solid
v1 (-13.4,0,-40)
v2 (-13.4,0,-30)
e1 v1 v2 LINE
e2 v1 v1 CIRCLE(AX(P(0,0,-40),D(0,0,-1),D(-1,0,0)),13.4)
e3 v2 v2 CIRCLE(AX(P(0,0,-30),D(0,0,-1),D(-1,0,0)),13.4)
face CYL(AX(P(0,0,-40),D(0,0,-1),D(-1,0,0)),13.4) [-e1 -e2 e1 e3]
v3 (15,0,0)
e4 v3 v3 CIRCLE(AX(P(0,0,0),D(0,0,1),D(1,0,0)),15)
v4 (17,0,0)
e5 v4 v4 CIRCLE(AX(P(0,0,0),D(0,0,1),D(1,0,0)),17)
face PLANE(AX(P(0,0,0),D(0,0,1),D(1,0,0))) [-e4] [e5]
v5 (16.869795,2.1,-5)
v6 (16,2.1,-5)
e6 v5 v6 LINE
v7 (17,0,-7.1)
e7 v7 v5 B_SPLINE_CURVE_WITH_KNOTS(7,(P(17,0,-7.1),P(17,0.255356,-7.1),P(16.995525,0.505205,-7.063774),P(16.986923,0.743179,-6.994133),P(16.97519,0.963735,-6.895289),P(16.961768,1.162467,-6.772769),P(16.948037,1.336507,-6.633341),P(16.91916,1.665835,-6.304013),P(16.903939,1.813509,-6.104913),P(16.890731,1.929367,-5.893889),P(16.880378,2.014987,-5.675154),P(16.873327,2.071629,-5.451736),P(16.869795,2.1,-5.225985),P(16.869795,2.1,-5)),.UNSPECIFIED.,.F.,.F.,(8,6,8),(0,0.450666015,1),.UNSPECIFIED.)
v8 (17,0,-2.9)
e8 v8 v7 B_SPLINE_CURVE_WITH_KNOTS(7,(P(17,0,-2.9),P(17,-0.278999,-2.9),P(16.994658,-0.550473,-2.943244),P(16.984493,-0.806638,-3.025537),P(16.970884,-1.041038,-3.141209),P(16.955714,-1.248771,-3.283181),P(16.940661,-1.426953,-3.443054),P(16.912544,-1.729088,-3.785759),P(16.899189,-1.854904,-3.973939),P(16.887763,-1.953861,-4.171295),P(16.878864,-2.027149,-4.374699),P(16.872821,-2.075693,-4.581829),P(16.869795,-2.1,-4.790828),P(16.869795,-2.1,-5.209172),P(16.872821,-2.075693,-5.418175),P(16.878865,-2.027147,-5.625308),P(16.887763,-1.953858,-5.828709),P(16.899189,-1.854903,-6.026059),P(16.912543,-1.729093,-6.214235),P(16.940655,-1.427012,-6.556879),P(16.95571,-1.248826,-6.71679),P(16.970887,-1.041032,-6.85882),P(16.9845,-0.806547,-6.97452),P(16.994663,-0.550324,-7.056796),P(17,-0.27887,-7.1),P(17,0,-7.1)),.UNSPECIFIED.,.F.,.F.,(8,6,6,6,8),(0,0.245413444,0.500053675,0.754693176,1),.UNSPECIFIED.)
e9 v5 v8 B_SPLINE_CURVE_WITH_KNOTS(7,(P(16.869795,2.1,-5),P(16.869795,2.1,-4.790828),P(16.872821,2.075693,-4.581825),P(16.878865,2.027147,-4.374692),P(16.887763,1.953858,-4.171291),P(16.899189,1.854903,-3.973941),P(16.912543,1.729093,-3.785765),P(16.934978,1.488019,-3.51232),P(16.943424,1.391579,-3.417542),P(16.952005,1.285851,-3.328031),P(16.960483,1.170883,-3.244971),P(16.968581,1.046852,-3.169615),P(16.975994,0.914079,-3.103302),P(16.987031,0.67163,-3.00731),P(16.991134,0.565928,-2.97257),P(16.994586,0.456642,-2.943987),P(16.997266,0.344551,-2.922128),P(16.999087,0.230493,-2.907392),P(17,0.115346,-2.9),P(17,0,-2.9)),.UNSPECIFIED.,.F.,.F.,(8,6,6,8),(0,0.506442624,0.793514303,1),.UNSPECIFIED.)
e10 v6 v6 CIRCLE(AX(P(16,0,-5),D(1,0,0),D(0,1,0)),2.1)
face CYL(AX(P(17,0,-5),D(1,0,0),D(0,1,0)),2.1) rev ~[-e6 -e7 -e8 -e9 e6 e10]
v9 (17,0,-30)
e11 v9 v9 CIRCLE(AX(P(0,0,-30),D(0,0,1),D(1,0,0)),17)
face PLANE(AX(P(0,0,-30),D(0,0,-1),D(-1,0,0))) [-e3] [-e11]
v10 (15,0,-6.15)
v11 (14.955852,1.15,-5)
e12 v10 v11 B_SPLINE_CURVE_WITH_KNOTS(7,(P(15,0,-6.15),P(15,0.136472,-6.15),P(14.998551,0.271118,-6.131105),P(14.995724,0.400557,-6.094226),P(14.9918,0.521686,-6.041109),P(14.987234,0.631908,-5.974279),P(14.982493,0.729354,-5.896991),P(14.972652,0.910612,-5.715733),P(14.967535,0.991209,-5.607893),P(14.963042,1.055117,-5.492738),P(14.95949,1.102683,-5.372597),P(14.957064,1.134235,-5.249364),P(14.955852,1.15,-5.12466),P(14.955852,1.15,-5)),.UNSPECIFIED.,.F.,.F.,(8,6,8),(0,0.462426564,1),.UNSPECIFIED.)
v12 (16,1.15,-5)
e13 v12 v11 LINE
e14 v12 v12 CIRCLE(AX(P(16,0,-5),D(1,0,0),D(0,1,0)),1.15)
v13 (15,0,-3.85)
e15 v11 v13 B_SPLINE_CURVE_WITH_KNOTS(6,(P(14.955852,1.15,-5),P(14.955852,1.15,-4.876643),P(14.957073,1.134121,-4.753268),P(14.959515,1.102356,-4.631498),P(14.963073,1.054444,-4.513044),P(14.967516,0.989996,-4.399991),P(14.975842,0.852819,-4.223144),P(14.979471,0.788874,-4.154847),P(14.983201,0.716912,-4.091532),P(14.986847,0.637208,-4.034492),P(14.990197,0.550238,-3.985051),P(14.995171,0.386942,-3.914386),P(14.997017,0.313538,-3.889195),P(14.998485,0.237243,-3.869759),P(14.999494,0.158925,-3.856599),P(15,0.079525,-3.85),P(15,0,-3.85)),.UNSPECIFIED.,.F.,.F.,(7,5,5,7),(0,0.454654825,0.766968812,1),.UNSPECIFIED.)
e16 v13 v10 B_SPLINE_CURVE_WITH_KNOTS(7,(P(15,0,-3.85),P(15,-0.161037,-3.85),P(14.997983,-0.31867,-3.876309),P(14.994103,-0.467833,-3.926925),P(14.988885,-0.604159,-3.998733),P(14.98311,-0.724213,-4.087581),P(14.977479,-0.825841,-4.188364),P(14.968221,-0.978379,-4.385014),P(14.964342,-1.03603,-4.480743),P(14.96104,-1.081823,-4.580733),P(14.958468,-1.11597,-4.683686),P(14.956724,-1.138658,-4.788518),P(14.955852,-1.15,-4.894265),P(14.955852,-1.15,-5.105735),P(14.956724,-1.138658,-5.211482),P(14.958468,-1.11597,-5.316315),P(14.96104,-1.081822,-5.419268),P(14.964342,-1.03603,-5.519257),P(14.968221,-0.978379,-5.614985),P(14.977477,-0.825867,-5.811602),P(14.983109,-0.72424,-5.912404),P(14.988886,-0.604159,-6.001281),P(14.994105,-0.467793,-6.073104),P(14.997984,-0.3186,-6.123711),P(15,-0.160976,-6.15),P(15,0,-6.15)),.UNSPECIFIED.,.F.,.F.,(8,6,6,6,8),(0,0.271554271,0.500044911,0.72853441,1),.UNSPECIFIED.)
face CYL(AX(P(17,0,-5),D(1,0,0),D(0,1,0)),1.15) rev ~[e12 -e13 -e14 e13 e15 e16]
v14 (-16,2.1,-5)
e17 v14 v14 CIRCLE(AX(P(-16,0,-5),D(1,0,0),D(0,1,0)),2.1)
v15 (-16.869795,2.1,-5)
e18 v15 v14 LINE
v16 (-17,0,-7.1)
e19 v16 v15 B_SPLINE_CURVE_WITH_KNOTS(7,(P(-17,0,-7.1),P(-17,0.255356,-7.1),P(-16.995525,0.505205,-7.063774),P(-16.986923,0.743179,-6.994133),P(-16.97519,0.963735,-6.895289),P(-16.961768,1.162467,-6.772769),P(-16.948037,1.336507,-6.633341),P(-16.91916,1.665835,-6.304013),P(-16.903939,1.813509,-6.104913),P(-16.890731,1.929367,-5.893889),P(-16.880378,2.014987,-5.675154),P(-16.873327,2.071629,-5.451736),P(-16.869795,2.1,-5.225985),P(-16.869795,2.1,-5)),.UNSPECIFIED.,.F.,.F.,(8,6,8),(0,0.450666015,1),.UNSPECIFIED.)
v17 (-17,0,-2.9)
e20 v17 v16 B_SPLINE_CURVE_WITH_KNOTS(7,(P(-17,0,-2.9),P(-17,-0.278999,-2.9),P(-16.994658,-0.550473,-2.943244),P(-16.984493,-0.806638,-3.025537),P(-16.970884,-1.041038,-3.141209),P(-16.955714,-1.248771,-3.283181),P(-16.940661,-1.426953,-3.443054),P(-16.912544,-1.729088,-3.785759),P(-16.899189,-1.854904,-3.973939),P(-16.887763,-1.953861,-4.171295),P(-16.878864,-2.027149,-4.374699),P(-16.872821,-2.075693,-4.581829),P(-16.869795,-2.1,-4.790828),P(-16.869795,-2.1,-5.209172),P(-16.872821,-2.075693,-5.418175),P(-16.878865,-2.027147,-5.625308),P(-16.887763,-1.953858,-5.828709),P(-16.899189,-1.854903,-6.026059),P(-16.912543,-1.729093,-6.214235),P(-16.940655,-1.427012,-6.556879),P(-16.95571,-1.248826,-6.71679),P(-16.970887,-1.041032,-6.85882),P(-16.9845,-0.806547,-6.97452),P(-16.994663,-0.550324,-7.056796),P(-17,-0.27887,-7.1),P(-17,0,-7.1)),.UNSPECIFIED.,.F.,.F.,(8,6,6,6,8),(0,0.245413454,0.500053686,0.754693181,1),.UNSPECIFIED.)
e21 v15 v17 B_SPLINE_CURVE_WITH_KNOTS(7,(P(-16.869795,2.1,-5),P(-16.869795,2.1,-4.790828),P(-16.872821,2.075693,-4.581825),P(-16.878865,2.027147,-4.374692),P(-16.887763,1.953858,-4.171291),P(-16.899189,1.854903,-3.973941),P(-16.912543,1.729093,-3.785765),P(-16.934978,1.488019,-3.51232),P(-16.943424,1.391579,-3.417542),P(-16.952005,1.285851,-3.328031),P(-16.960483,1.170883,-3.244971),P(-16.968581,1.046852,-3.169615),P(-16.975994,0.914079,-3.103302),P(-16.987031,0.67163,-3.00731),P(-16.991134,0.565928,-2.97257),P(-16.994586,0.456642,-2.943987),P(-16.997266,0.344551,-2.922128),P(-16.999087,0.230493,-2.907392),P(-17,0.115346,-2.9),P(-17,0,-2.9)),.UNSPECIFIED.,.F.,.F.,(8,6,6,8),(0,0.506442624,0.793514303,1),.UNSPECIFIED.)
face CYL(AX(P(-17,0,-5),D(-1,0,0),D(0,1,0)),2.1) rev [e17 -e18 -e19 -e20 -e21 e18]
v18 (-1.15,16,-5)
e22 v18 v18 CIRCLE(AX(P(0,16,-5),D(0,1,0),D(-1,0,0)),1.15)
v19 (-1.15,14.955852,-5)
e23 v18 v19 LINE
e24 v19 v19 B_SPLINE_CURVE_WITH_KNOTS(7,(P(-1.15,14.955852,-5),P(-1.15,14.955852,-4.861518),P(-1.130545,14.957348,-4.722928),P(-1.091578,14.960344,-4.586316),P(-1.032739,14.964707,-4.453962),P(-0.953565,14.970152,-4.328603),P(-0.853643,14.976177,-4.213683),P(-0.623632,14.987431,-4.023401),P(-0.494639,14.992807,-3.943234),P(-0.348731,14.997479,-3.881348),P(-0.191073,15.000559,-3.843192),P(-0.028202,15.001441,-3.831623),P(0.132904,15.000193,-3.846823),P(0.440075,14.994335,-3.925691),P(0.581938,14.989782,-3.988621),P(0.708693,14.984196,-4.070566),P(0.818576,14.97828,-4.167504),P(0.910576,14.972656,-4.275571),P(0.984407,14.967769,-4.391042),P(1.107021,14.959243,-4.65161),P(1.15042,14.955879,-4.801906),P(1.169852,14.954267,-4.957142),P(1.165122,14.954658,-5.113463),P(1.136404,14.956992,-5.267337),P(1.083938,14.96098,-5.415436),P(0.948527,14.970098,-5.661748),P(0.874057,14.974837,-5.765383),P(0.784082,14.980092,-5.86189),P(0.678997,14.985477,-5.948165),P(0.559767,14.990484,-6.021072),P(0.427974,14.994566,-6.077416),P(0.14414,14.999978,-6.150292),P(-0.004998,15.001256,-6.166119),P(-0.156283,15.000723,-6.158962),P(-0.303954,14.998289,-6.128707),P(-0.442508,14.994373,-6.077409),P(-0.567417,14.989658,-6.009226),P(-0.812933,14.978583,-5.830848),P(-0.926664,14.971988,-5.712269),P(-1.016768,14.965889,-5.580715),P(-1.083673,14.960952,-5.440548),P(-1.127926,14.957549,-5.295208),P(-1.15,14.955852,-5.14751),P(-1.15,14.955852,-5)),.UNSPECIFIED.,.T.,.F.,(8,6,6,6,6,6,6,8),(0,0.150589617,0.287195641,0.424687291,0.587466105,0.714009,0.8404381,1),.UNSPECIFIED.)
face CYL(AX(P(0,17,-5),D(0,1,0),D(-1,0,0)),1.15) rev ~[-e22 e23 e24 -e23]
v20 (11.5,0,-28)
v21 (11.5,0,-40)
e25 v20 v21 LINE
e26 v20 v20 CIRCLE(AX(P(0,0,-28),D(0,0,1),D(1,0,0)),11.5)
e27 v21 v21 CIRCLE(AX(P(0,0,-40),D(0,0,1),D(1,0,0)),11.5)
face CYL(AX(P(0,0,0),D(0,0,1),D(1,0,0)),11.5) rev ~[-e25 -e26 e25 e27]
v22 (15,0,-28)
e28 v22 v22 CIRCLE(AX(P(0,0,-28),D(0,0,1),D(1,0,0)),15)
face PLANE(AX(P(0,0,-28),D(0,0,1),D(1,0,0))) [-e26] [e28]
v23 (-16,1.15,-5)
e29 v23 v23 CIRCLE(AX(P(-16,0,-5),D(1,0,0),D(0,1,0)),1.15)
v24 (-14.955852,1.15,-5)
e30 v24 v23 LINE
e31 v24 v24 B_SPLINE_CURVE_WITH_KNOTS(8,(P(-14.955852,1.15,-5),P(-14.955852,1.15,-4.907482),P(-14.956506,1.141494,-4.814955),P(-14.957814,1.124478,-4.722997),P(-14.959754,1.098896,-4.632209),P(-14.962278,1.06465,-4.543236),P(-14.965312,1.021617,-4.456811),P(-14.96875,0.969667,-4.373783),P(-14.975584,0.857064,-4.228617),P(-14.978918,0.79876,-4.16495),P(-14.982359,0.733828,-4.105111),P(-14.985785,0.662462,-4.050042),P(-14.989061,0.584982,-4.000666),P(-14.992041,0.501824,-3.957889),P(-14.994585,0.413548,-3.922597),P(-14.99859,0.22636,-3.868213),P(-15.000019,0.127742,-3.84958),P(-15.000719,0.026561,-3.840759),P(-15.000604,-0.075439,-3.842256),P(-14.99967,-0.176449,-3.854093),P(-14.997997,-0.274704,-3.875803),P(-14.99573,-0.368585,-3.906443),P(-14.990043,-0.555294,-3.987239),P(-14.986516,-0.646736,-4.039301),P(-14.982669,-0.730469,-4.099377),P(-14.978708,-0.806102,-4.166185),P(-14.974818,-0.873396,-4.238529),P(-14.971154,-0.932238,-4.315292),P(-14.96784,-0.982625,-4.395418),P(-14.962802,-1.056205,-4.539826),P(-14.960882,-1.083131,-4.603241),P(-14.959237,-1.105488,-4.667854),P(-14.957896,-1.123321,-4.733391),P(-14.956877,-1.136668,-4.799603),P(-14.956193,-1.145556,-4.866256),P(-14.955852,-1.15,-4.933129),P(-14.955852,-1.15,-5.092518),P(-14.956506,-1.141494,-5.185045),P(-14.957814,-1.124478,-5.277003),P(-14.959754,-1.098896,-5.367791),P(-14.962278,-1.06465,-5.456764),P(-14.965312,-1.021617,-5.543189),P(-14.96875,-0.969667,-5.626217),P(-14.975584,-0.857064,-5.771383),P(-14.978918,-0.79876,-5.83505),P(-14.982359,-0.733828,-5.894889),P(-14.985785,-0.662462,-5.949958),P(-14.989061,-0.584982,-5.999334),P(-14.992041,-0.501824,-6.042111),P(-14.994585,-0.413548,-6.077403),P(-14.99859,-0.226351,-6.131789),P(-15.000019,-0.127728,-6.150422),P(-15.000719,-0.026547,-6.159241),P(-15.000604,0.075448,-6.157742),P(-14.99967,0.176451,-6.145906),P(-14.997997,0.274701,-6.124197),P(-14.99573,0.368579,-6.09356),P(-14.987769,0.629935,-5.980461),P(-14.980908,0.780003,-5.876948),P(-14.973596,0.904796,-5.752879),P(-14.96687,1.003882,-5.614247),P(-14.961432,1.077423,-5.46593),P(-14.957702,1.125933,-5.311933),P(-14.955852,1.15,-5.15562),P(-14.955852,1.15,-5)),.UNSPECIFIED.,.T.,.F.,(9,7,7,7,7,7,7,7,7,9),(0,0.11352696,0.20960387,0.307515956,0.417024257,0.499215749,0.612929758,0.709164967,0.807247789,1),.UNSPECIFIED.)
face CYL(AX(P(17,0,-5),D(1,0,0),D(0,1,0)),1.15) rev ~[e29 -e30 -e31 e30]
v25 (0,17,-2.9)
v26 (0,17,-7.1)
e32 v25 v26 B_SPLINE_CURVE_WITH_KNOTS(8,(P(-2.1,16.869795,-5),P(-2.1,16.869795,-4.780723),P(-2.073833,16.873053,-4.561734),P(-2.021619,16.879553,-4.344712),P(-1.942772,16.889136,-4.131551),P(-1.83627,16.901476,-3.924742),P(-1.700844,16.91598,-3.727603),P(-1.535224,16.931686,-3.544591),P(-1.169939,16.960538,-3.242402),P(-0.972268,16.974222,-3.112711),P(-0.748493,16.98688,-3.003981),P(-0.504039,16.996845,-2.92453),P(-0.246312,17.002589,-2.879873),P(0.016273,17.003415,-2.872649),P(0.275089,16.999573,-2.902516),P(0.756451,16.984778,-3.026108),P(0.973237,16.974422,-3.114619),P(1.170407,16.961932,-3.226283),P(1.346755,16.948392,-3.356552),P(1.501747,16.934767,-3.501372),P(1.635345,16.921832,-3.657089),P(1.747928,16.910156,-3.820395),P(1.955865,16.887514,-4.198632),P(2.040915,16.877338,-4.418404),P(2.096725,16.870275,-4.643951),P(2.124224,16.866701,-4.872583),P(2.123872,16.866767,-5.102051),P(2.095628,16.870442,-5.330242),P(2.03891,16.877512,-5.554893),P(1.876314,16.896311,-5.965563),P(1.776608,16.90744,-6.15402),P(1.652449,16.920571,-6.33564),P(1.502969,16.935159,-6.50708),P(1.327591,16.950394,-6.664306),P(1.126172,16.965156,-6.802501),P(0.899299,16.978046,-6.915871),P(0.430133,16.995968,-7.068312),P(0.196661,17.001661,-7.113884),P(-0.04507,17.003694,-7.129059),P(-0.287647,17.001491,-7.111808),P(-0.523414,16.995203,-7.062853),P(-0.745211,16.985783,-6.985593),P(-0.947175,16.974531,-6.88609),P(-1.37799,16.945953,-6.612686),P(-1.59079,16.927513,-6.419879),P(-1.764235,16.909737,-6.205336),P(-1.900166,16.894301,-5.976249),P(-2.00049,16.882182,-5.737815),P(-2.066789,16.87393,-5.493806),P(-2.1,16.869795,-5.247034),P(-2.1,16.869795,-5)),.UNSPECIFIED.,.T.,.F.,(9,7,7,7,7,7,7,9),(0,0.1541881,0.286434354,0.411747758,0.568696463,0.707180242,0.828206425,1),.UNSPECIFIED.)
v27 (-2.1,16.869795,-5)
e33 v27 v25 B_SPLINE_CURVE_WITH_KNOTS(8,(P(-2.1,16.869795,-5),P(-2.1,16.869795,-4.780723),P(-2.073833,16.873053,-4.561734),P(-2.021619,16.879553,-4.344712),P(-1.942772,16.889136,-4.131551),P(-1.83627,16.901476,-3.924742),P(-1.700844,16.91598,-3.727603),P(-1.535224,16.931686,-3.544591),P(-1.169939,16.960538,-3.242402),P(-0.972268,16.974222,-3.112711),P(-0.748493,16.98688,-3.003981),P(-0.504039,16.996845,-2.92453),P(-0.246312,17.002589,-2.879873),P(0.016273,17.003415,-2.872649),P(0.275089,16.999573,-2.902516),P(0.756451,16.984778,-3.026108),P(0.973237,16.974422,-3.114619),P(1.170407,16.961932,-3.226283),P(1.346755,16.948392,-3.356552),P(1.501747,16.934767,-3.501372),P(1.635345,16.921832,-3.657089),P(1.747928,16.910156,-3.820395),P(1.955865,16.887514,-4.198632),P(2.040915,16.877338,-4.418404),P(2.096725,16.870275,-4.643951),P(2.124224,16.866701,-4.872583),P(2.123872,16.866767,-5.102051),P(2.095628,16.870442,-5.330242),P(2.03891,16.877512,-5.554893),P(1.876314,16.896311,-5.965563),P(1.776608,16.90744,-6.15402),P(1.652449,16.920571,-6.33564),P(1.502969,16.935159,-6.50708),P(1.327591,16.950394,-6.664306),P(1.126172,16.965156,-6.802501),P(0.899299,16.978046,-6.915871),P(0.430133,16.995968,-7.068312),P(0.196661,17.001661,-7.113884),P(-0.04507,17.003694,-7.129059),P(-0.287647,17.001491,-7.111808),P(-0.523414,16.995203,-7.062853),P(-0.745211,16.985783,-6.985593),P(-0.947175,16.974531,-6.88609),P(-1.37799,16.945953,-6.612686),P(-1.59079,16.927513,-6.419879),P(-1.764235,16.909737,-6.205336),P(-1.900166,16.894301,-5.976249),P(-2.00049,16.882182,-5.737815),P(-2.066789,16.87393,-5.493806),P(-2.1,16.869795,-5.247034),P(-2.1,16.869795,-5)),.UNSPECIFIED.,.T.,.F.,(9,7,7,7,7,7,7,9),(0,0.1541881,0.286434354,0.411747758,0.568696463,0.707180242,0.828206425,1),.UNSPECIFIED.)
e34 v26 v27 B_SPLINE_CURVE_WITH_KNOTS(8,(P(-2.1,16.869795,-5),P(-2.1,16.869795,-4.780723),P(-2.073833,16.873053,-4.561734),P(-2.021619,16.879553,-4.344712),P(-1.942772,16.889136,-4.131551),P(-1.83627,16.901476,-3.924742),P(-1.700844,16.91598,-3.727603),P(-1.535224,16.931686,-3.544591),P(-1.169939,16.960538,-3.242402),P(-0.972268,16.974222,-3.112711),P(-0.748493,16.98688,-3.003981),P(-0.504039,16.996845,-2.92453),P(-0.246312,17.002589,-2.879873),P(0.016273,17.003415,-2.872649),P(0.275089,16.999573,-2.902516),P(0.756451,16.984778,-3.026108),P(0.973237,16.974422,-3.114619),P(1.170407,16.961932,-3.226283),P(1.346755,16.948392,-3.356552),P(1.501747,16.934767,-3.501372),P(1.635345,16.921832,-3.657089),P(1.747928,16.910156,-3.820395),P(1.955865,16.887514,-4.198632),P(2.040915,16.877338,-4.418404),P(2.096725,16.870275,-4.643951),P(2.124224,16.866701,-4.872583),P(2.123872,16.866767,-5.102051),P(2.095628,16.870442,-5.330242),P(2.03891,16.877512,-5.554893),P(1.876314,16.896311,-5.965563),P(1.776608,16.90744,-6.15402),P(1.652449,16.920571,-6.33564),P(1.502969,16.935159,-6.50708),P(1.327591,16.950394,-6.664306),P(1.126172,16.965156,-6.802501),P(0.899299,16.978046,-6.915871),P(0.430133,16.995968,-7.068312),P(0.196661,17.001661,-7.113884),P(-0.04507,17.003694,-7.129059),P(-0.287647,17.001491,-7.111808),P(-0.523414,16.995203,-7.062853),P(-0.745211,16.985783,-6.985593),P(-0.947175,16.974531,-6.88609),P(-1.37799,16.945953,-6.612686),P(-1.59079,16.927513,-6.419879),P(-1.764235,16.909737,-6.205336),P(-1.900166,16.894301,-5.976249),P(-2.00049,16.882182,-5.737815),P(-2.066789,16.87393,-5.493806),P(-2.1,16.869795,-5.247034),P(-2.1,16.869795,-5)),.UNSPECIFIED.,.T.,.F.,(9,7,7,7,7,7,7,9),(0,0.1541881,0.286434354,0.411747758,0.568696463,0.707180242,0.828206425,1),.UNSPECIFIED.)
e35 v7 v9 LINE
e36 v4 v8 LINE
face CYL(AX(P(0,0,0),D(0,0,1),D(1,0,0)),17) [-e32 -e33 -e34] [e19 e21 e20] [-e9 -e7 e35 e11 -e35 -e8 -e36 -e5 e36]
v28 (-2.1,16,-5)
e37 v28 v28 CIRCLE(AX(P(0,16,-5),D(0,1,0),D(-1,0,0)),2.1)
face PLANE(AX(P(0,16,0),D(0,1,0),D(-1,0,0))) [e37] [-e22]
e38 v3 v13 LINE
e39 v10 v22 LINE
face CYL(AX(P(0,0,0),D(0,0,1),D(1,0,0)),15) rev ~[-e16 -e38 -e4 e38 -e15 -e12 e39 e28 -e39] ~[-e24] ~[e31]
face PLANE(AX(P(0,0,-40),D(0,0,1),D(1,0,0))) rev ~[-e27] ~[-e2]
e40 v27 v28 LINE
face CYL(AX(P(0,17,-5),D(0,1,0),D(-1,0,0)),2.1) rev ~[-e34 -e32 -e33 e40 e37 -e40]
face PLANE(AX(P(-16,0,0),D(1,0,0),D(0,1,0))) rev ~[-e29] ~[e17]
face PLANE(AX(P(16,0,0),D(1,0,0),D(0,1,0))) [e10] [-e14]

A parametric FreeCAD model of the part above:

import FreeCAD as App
import Part
import Sketcher

doc = App.newDocument("Part")
body = doc.addObject("PartDesign::Body", "Body")

sketch1 = body.newObject("Sketcher::SketchObject", "Sketch")
sketch1.AttachmentSupport = (doc.getObject("XY_Plane"), [""])
sketch1.MapMode = "FlatFace"
sketch1.addGeometry([
    Part.Circle(App.Vector(0, 0, 0), App.Vector(0, 0, 1), 17),
    Part.Circle(App.Vector(0, 0, 0), App.Vector(0, 0, 1), 12),
], False)
sketch1.addConstraint([
    Sketcher.Constraint("Coincident", 0, 3, -1, 1),
    Sketcher.Constraint("Coincident", 1, 3, -1, 1),
    Sketcher.Constraint("Diameter", 0, 34.0),
    Sketcher.Constraint("Diameter", 1, 23.0),
])
pad1 = body.newObject("PartDesign::Pad", "Pad")
pad1.Profile = sketch1
pad1.Length = 40
pad1.Reversed = True

sketch2 = body.newObject("Sketcher::SketchObject", "Sketch001")
sketch2.AttachmentSupport = (doc.getObject("XY_Plane"), [""])
sketch2.MapMode = "FlatFace"
sketch2.addGeometry(Part.Circle(App.Vector(0, 0, 0), App.Vector(0, 0, 1), 15), False)
sketch2.addConstraint([
    Sketcher.Constraint("Coincident", 0, 3, -1, 1),
    Sketcher.Constraint("Diameter", 0, 30.0),
])
pocket1 = body.newObject("PartDesign::Pocket", "Pocket")
pocket1.Profile = sketch2
pocket1.Length = 28

sketch3 = body.newObject("Sketcher::SketchObject", "Sketch002")
sketch3.AttachmentSupport = (doc.getObject("YZ_Plane"), [""])
sketch3.MapMode = "FlatFace"
sketch3.AttachmentOffset = App.Placement(App.Vector(0, 0, 17), App.Rotation())
sketch3.addGeometry(Part.Circle(App.Vector(0, -5, 0), App.Vector(0, 0, 1), 1.1), False)
sketch3.addConstraint([
    Sketcher.Constraint("PointOnObject", 0, 3, -2),
    Sketcher.Constraint("Diameter", 0, 2.3),
    Sketcher.Constraint("DistanceY", 0, 3, -1, 1, 5.0),
])
pocket2 = body.newObject("PartDesign::Pocket", "Pocket001")
pocket2.Profile = sketch3
pocket2.Type = "ThroughAll"

sketch4 = body.newObject("Sketcher::SketchObject", "Sketch003")
sketch4.AttachmentSupport = (doc.getObject("XZ_Plane"), [""])
sketch4.MapMode = "FlatFace"
sketch4.AttachmentOffset = App.Placement(App.Vector(0, 0, -17), App.Rotation())
sketch4.addGeometry(Part.Circle(App.Vector(0, -5, 0), App.Vector(0, 0, 1), 1.1), False)
sketch4.addConstraint([
    Sketcher.Constraint("PointOnObject", 0, 3, -2),
    Sketcher.Constraint("Diameter", 0, 2.3),
    Sketcher.Constraint("DistanceY", 0, 3, -1, 1, 5.0),
])
pocket3 = body.newObject("PartDesign::Pocket", "Pocket002")
pocket3.Profile = sketch4
pocket3.Length = 5
pocket3.Reversed = True

sketch5 = body.newObject("Sketcher::SketchObject", "Sketch004")
sketch5.AttachmentSupport = (doc.getObject("YZ_Plane"), [""])
sketch5.MapMode = "FlatFace"
sketch5.AttachmentOffset = App.Placement(App.Vector(0, 0, 17), App.Rotation())
sketch5.addGeometry(Part.Circle(App.Vector(0, -5, 0), App.Vector(0, 0, 1), 2.1), False)
sketch5.addConstraint([
    Sketcher.Constraint("PointOnObject", 0, 3, -2),
    Sketcher.Constraint("Diameter", 0, 4.2),
    Sketcher.Constraint("DistanceY", 0, 3, -1, 1, 5.0),
])
pocket4 = body.newObject("PartDesign::Pocket", "Pocket003")
pocket4.Profile = sketch5
pocket4.Length = 1

sketch6 = body.newObject("Sketcher::SketchObject", "Sketch005")
sketch6.AttachmentSupport = (doc.getObject("XZ_Plane"), [""])
sketch6.MapMode = "FlatFace"
sketch6.AttachmentOffset = App.Placement(App.Vector(0, 0, -17), App.Rotation())
sketch6.addGeometry(Part.Circle(App.Vector(0, -5, 0), App.Vector(0, 0, 1), 2.1), False)
sketch6.addConstraint([
    Sketcher.Constraint("PointOnObject", 0, 3, -2),
    Sketcher.Constraint("Diameter", 0, 4.2),
    Sketcher.Constraint("DistanceY", 0, 3, -1, 1, 5.0),
])
pocket5 = body.newObject("PartDesign::Pocket", "Pocket004")
pocket5.Profile = sketch6
pocket5.Length = 1
pocket5.Reversed = True

sketch7 = body.newObject("Sketcher::SketchObject", "Sketch006")
sketch7.AttachmentSupport = (doc.getObject("YZ_Plane"), [""])
sketch7.MapMode = "FlatFace"
sketch7.AttachmentOffset = App.Placement(App.Vector(0, 0, -17), App.Rotation())
sketch7.addGeometry(Part.Circle(App.Vector(0, -5, 0), App.Vector(0, 0, 1), 2.1), False)
sketch7.addConstraint([
    Sketcher.Constraint("PointOnObject", 0, 3, -2),
    Sketcher.Constraint("Diameter", 0, 4.2),
    Sketcher.Constraint("DistanceY", 0, 3, -1, 1, 5.0),
])
pocket6 = body.newObject("PartDesign::Pocket", "Pocket005")
pocket6.Profile = sketch7
pocket6.Length = 1
pocket6.Reversed = True

sketch8 = body.newObject("Sketcher::SketchObject", "Sketch007")
sketch8.AttachmentSupport = (doc.getObject("XY_Plane"), [""])
sketch8.MapMode = "FlatFace"
sketch8.AttachmentOffset = App.Placement(App.Vector(0, 0, -40), App.Rotation())
sketch8.addGeometry([
    Part.Circle(App.Vector(0, 0, 0), App.Vector(0, 0, 1), 17),
    Part.Circle(App.Vector(0, 0, 0), App.Vector(0, 0, 1), 13),
], False)
sketch8.addConstraint([
    Sketcher.Constraint("Coincident", 0, 3, -1, 1),
    Sketcher.Constraint("Coincident", 1, 3, -1, 1),
    Sketcher.Constraint("Diameter", 0, 34.0),
    Sketcher.Constraint("Diameter", 1, 26.8),
])
pocket7 = body.newObject("PartDesign::Pocket", "Pocket006")
pocket7.Profile = sketch8
pocket7.Length = 10
pocket7.Reversed = True

doc.recompute()
